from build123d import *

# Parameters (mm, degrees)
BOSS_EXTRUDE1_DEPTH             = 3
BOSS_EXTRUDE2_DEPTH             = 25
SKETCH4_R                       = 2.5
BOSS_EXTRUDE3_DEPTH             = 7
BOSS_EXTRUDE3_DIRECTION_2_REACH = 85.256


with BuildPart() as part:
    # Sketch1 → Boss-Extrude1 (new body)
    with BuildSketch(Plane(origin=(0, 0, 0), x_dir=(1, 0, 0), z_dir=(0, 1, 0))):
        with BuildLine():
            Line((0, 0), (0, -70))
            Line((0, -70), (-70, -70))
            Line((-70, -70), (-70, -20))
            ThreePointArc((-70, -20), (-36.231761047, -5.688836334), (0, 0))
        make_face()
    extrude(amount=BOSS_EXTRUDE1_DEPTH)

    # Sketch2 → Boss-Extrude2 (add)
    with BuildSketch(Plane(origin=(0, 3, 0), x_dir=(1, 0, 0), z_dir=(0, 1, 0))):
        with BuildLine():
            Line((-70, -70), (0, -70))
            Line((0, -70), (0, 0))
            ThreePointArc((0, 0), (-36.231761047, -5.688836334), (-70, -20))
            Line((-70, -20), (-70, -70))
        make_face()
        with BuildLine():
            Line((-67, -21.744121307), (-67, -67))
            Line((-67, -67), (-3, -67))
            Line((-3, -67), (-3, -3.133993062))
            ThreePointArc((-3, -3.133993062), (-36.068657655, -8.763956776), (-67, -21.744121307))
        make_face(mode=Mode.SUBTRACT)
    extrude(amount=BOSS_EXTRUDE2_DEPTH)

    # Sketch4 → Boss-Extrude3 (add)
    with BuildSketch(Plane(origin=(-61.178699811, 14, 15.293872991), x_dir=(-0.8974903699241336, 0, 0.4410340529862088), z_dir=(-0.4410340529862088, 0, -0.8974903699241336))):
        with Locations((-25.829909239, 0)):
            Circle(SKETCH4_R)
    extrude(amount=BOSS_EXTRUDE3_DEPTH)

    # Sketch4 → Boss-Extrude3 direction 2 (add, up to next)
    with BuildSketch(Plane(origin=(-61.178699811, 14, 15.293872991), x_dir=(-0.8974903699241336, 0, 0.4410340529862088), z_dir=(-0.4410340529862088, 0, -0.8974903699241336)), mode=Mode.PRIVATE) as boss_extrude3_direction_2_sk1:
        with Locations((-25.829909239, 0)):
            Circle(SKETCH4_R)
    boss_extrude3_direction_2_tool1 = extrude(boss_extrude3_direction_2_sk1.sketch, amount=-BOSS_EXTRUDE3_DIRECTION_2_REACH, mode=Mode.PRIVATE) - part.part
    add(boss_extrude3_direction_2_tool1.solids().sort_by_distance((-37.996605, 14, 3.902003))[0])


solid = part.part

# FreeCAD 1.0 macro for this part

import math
import FreeCAD as App
import Part
import Sketcher

V = App.Vector
Q = App.Units.Quantity

doc = App.newDocument("Part")
params = doc.addObject("Spreadsheet::Sheet", "Params")
for row, (alias, value) in enumerate([
    ("sketch1_radius", "150 mm"),
    ("sketch1_width", "70 mm"),
    ("sketch1_height", "50 mm"),
    ("pad1_length", "3 mm"),
    ("sketch2_radius", "150 mm"),
    ("sketch2_radius2", "147 mm"),
    ("sketch2_width", "70 mm"),
    ("sketch2_width2", "64 mm"),
    ("sketch2_height", "50 mm"),
    ("pad2_length", "25 mm"),
    ("sketch3_diameter", "5 mm"),
    ("pad3_length", "7 mm"),
    ("sketch4_diameter", "5 mm"),
], start=1):
    params.set(f"A{row}", alias)
    params.set(f"B{row}", "=" + value)
    params.setAlias(f"B{row}", alias)

body = doc.addObject("PartDesign::Body", "Body")
body.AllowCompound = True

sketch1 = body.newObject("Sketcher::SketchObject", "Sketch")
sketch1.AttachmentSupport = (doc.getObject("XZ_Plane"), [""])
sketch1.MapMode = "FlatFace"
sketch1.addGeometry([
    Part.LineSegment(V(0, 70, 0), V(0, 0, 0)),
    Part.ArcOfCircle(Part.Circle(V(5, 150, 0), V(0, 0, 1), 150), math.radians(-120), math.radians(-92)),
    Part.LineSegment(V(-70, 20, 0), V(-70, 70, 0)),
    Part.LineSegment(V(-70, 70, 0), V(0, 70, 0)),
], False)
sketch1.addConstraint([
    Sketcher.Constraint("Coincident", 0, 2, 1, 2),
    Sketcher.Constraint("Coincident", 1, 1, 2, 1),
    Sketcher.Constraint("Coincident", 2, 2, 3, 1),
    Sketcher.Constraint("Coincident", 3, 2, 0, 1),
    Sketcher.Constraint("Vertical", 0),
    Sketcher.Constraint("Vertical", 2),
    Sketcher.Constraint("Horizontal", 3),
    Sketcher.Constraint("Coincident", 0, 2, -1, 1),
    Sketcher.Constraint("Equal", 3, 0),
    Sketcher.Constraint("Radius", 1, Q("150 mm")),
    Sketcher.Constraint("DistanceX", 3, 1, 3, 2, Q("70 mm")),
    Sketcher.Constraint("DistanceY", 2, 1, 2, 2, Q("50 mm")),
])
sketch1.setExpression("Constraints[9]", "Params.sketch1_radius")
sketch1.setExpression("Constraints[10]", "Params.sketch1_width")
sketch1.setExpression("Constraints[11]", "Params.sketch1_height")
pad1 = body.newObject("PartDesign::Pad", "Pad")
pad1.Profile = sketch1
pad1.setExpression("Length", "Params.pad1_length")
pad1.Reversed = True

sketch2 = body.newObject("Sketcher::SketchObject", "Sketch001")
sketch2.AttachmentSupport = (doc.getObject("XZ_Plane"), [""])
sketch2.MapMode = "FlatFace"
sketch2.AttachmentOffset = App.Placement(V(0, 0, -3), App.Rotation())
sketch2.addGeometry([
    Part.LineSegment(V(-70, 70, 0), V(0, 70, 0)),
    Part.LineSegment(V(0, 70, 0), V(0, 0, 0)),
    Part.ArcOfCircle(Part.Circle(V(5, 150, 0), V(0, 0, 1), 150), math.radians(-120), math.radians(-92)),
    Part.LineSegment(V(-70, 20, 0), V(-70, 70, 0)),
    Part.LineSegment(V(-67, 67, 0), V(-67, 22, 0)),
    Part.ArcOfCircle(Part.Circle(V(5, 150, 0), V(0, 0, 1), 147), math.radians(-119), math.radians(-93)),
    Part.LineSegment(V(-3, 3, 0), V(-3, 67, 0)),
    Part.LineSegment(V(-3, 67, 0), V(-67, 67, 0)),
], False)
sketch2.addConstraint([
    Sketcher.Constraint("Coincident", 0, 2, 1, 1),
    Sketcher.Constraint("Coincident", 1, 2, 2, 2),
    Sketcher.Constraint("Coincident", 2, 1, 3, 1),
    Sketcher.Constraint("Coincident", 3, 2, 0, 1),
    Sketcher.Constraint("Coincident", 4, 2, 5, 1),
    Sketcher.Constraint("Coincident", 5, 2, 6, 1),
    Sketcher.Constraint("Coincident", 6, 2, 7, 1),
    Sketcher.Constraint("Coincident", 7, 2, 4, 1),
    Sketcher.Constraint("Horizontal", 0),
    Sketcher.Constraint("Vertical", 1),
    Sketcher.Constraint("Vertical", 3),
    Sketcher.Constraint("Vertical", 4),
    Sketcher.Constraint("Vertical", 6),
    Sketcher.Constraint("Horizontal", 7),
    Sketcher.Constraint("Coincident", 1, 2, -1, 1),
    Sketcher.Constraint("Coincident", 5, 3, 2, 3),
    Sketcher.Constraint("Equal", 0, 1),
    Sketcher.Constraint("Radius", 2, Q("150 mm")),
    Sketcher.Constraint("Radius", 5, Q("147 mm")),
    Sketcher.Constraint("DistanceX", 0, 1, 0, 2, Q("70 mm")),
    Sketcher.Constraint("DistanceX", 7, 2, 7, 1, Q("64 mm")),
    Sketcher.Constraint("DistanceY", 3, 1, 3, 2, Q("50 mm")),
    Sketcher.Constraint("DistanceX", 4, 2, -1, 1, Q("67 mm")),
    Sketcher.Constraint("DistanceY", -1, 1, 6, 2, Q("67 mm")),
])
sketch2.setExpression("Constraints[17]", "Params.sketch2_radius")
sketch2.setExpression("Constraints[18]", "Params.sketch2_radius2")
sketch2.setExpression("Constraints[19]", "Params.sketch2_width")
sketch2.setExpression("Constraints[20]", "Params.sketch2_width2")
sketch2.setExpression("Constraints[21]", "Params.sketch2_height")
pad2 = body.newObject("PartDesign::Pad", "Pad001")
pad2.Profile = sketch2
pad2.setExpression("Length", "Params.pad2_length")
pad2.Reversed = True

sketch3 = body.newObject("Sketcher::SketchObject", "Sketch002")
sketch3.Placement = App.Placement(V(-61.1787, 14, 15.293873), App.Rotation(V(-0.89749037, 0, 0.441034053), V(0, 1, 0), V(-0.441034053, 0, -0.89749037), "ZXY"))
sketch3.addGeometry(Part.Circle(V(-25.8, 0, 0), V(0, 0, 1), 2.5), False)
sketch3.addConstraint([
    Sketcher.Constraint("PointOnObject", 0, 3, -1),
    Sketcher.Constraint("Diameter", 0, Q("5 mm")),
    Sketcher.Constraint("DistanceX", 0, 3, -1, 1, Q("25.829909 mm")),
])
sketch3.setExpression("Constraints[1]", "Params.sketch3_diameter")
pad3 = body.newObject("PartDesign::Pad", "Pad002")
pad3.Profile = sketch3
pad3.setExpression("Length", "Params.pad3_length")

sketch4 = body.newObject("Sketcher::SketchObject", "Sketch003")
sketch4.Placement = App.Placement(V(-61.1787, 14, 15.293873), App.Rotation(V(-0.89749037, 0, 0.441034053), V(0, 1, 0), V(-0.441034053, 0, -0.89749037), "ZXY"))
sketch4.addGeometry(Part.Circle(V(-25.8, 0, 0), V(0, 0, 1), 2.5), False)
sketch4.addConstraint([
    Sketcher.Constraint("PointOnObject", 0, 3, -1),
    Sketcher.Constraint("Diameter", 0, Q("5 mm")),
    Sketcher.Constraint("DistanceX", 0, 3, -1, 1, Q("25.829909 mm")),
])
sketch4.setExpression("Constraints[1]", "Params.sketch4_diameter")
pad4 = body.newObject("PartDesign::Pad", "Pad003")
pad4.Profile = sketch4
pad4.Type = "UpToFirst"
pad4.Reversed = True

doc.recompute()
